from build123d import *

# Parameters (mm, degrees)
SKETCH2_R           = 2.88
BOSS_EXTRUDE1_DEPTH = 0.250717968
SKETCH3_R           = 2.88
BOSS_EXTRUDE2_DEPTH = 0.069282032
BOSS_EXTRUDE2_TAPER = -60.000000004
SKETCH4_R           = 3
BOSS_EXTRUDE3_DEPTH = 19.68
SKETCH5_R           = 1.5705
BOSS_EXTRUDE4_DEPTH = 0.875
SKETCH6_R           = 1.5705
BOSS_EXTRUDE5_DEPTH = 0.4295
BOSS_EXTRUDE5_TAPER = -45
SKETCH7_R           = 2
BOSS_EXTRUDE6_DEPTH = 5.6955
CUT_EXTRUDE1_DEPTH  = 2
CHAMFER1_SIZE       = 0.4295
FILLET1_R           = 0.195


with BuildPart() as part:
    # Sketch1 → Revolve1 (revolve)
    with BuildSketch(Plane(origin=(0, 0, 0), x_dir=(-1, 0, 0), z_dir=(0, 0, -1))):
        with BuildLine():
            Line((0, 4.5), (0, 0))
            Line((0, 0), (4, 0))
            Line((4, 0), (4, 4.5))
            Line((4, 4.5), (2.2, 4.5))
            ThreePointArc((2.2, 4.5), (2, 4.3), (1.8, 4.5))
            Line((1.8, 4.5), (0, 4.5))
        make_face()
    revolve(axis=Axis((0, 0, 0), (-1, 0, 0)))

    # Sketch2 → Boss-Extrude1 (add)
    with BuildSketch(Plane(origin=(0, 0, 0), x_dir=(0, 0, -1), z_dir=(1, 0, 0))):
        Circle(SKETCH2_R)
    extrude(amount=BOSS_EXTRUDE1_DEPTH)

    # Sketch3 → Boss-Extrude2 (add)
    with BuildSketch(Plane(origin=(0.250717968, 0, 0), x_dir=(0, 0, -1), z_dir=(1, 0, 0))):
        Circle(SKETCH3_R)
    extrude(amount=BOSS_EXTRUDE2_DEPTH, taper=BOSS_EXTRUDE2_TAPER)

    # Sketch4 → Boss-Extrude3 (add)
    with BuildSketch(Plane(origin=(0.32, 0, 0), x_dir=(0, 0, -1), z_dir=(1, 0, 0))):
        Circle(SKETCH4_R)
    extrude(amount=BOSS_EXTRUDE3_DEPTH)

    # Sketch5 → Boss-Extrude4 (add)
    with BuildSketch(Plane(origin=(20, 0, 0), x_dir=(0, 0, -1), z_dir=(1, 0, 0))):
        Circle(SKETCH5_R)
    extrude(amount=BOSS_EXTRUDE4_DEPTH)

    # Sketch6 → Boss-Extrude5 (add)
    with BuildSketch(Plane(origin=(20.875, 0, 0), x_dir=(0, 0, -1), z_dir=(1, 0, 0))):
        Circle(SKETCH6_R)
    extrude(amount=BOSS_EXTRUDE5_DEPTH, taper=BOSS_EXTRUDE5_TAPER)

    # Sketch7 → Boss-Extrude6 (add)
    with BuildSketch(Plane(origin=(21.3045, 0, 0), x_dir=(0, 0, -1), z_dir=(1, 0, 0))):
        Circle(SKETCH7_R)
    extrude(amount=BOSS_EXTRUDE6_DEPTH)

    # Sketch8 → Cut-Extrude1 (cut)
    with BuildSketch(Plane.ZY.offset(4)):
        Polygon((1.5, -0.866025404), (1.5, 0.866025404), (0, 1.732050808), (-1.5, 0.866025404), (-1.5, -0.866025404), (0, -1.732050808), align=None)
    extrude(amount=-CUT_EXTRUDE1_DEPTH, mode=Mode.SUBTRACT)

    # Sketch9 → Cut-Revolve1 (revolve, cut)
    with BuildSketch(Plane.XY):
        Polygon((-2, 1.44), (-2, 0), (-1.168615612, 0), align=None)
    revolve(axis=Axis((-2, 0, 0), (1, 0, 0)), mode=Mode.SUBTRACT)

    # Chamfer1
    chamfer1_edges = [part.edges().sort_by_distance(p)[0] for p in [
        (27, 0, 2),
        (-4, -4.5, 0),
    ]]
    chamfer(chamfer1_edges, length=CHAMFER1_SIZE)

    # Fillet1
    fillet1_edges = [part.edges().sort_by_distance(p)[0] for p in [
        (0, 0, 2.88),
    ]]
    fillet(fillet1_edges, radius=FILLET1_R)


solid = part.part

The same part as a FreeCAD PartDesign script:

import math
import FreeCAD as App
import Part
import Sketcher
from FreeCAD import Vector
Q = App.Units.Quantity


def edges_at(feature, points):
    """Names of the edges that pass closest to the given points."""
    edges = feature.Shape.Edges
    near = lambda p: min(range(len(edges)), key=lambda i: edges[i].distToShape(Part.Vertex(*p))[0])
    return sorted({f"Edge{near(p) + 1}" for p in points})


def add_polygon(sketch, points):
    """Adds a closed chain of lines whose ends are joined by coincident constraints."""
    first, n = sketch.GeometryCount, len(points)
    for a, b in zip(points, points[1:] + points[:1]):
        sketch.addGeometry(Part.LineSegment(App.Vector(*a, 0), App.Vector(*b, 0)), False)
    for i in range(n):
        sketch.addConstraint(Sketcher.Constraint("Coincident", first + i, 2, first + (i + 1) % n, 1))

doc = App.newDocument("Part")
body = doc.addObject("PartDesign::Body", "Body")

# Sketch on XY plane
sketch1 = body.newObject("Sketcher::SketchObject", "Sketch")
sketch1.AttachmentSupport = (doc.getObject("XY_Plane"), [""])
sketch1.MapMode = "FlatFace"
sketch1.addGeometry([
    Part.LineSegment(Vector(0, 4.5, 0), Vector(0, 0, 0)),  # 0
    Part.LineSegment(Vector(0, 0, 0), Vector(-4, 0, 0)),  # 1
    Part.LineSegment(Vector(-4, 0, 0), Vector(-4, 4.5, 0)),  # 2
    Part.LineSegment(Vector(-4, 4.5, 0), Vector(-2.2, 4.5, 0)),  # 3
    Part.ArcOfCircle(Part.Circle(Vector(-2, 4.5, 0), Vector(0, 0, 1), 0.2), math.radians(180), math.radians(360)),  # 4
    Part.LineSegment(Vector(-1.8, 4.5, 0), Vector(0, 4.5, 0)),  # 5
], False)
sketch1.addConstraint([
    Sketcher.Constraint("Coincident", 0, 2, 1, 1),
    Sketcher.Constraint("Coincident", 1, 2, 2, 1),
    Sketcher.Constraint("Coincident", 2, 2, 3, 1),
    Sketcher.Constraint("Coincident", 3, 2, 4, 1),
    Sketcher.Constraint("Coincident", 4, 2, 5, 1),
    Sketcher.Constraint("Coincident", 5, 2, 0, 1),
    Sketcher.Constraint("Vertical", 0),
    Sketcher.Constraint("Horizontal", 1),
    Sketcher.Constraint("Vertical", 2),
    Sketcher.Constraint("Horizontal", 3),
    Sketcher.Constraint("Horizontal", 5),
    Sketcher.Constraint("Coincident", 0, 2, -1, 1),
    Sketcher.Constraint("Horizontal", 4, 3, 2, 2),
    Sketcher.Constraint("Horizontal", 3, 2, 4, 2),
    Sketcher.Constraint("Equal", 3, 5),
    Sketcher.Constraint("Radius", 4, Q("0.2 mm")),
    Sketcher.Constraint("DistanceX", 1, 2, 1, 1, Q("4 mm")),
    Sketcher.Constraint("DistanceY", 0, 2, 0, 1, Q("4.5 mm")),
])
revolution = body.newObject("PartDesign::Revolution", "Revolution")
revolution.Profile = sketch1
revolution.ReferenceAxis = (sketch1, ["H_Axis"])
revolution.Angle = 360

# Sketch on YZ plane
sketch2 = body.newObject("Sketcher::SketchObject", "Sketch001")
sketch2.AttachmentSupport = (doc.getObject("YZ_Plane"), [""])
sketch2.MapMode = "FlatFace"
sketch2.addGeometry(Part.Circle(Vector(0, 0, 0), Vector(0, 0, 1), 2.9), False)
sketch2.addConstraint([
    Sketcher.Constraint("Coincident", 0, 3, -1, 1),
    Sketcher.Constraint("Diameter", 0, Q("5.76 mm")),
])
pad1 = body.newObject("PartDesign::Pad", "Pad")
pad1.Profile = sketch2
pad1.Length = 0.250718

# Sketch on YZ plane
sketch3 = body.newObject("Sketcher::SketchObject", "Sketch002")
sketch3.AttachmentSupport = (doc.getObject("YZ_Plane"), [""])
sketch3.MapMode = "FlatFace"
sketch3.AttachmentOffset = App.Placement(Vector(0, 0, 0.250718), App.Rotation())
sketch3.addGeometry(Part.Circle(Vector(0, 0, 0), Vector(0, 0, 1), 2.9), False)
sketch3.addConstraint([
    Sketcher.Constraint("Coincident", 0, 3, -1, 1),
    Sketcher.Constraint("Diameter", 0, Q("5.76 mm")),
])
pad2 = body.newObject("PartDesign::Pad", "Pad001")
pad2.Profile = sketch3
pad2.Length = 0.069282
pad2.TaperAngle = 60

# Sketch on YZ plane
sketch4 = body.newObject("Sketcher::SketchObject", "Sketch003")
sketch4.AttachmentSupport = (doc.getObject("YZ_Plane"), [""])
sketch4.MapMode = "FlatFace"
sketch4.AttachmentOffset = App.Placement(Vector(0, 0, 0.32), App.Rotation())
sketch4.addGeometry(Part.Circle(Vector(0, 0, 0), Vector(0, 0, 1), 3), False)
sketch4.addConstraint([
    Sketcher.Constraint("Coincident", 0, 3, -1, 1),
    Sketcher.Constraint("Diameter", 0, Q("6 mm")),
])
pad3 = body.newObject("PartDesign::Pad", "Pad002")
pad3.Profile = sketch4
pad3.Length = 19.68

# Sketch on YZ plane
sketch5 = body.newObject("Sketcher::SketchObject", "Sketch004")
sketch5.AttachmentSupport = (doc.getObject("YZ_Plane"), [""])
sketch5.MapMode = "FlatFace"
sketch5.AttachmentOffset = App.Placement(Vector(0, 0, 20), App.Rotation())
sketch5.addGeometry(Part.Circle(Vector(0, 0, 0), Vector(0, 0, 1), 1.6), False)
sketch5.addConstraint([
    Sketcher.Constraint("Coincident", 0, 3, -1, 1),
    Sketcher.Constraint("Diameter", 0, Q("3.141 mm")),
])
pad4 = body.newObject("PartDesign::Pad", "Pad003")
pad4.Profile = sketch5
pad4.Length = 0.875

# Sketch on YZ plane
sketch6 = body.newObject("Sketcher::SketchObject", "Sketch005")
sketch6.AttachmentSupport = (doc.getObject("YZ_Plane"), [""])
sketch6.MapMode = "FlatFace"
sketch6.AttachmentOffset = App.Placement(Vector(0, 0, 20.875), App.Rotation())
sketch6.addGeometry(Part.Circle(Vector(0, 0, 0), Vector(0, 0, 1), 1.6), False)
sketch6.addConstraint([
    Sketcher.Constraint("Coincident", 0, 3, -1, 1),
    Sketcher.Constraint("Diameter", 0, Q("3.141 mm")),
])
pad5 = body.newObject("PartDesign::Pad", "Pad004")
pad5.Profile = sketch6
pad5.Length = 0.4295
pad5.TaperAngle = 45

# Sketch on YZ plane
sketch7 = body.newObject("Sketcher::SketchObject", "Sketch006")
sketch7.AttachmentSupport = (doc.getObject("YZ_Plane"), [""])
sketch7.MapMode = "FlatFace"
sketch7.AttachmentOffset = App.Placement(Vector(0, 0, 21.3045), App.Rotation())
sketch7.addGeometry(Part.Circle(Vector(0, 0, 0), Vector(0, 0, 1), 2), False)
sketch7.addConstraint([
    Sketcher.Constraint("Coincident", 0, 3, -1, 1),
    Sketcher.Constraint("Diameter", 0, Q("4 mm")),
])
pad6 = body.newObject("PartDesign::Pad", "Pad005")
pad6.Profile = sketch7
pad6.Length = 5.6955

# Sketch on YZ plane
sketch8 = body.newObject("Sketcher::SketchObject", "Sketch007")
sketch8.AttachmentSupport = (doc.getObject("YZ_Plane"), [""])
sketch8.MapMode = "FlatFace"
sketch8.AttachmentOffset = App.Placement(Vector(0, 0, -4), App.Rotation())
add_polygon(sketch8, [(-0.9, 1.5), (0.9, 1.5), (1.7, 0), (0.9, -1.5), (-0.9, -1.5), (-1.7, 0)])  # lines 0-5
sketch8.addConstraint([
    Sketcher.Constraint("Horizontal", 0),
    Sketcher.Constraint("Horizontal", 3),
    Sketcher.Constraint("Symmetric", 0, 2, 3, 2, -1, 1),
    Sketcher.Constraint("Symmetric", 1, 2, 4, 2, -1, 1),
    Sketcher.Constraint("PointOnObject", 1, 2, -1),
    Sketcher.Constraint("Parallel", 2, 5),
    Sketcher.Constraint("Vertical", 0, 2, 2, 2),
    Sketcher.Constraint("Angle", 1, Q("-60 deg")),
    Sketcher.Constraint("DistanceY", 2, 2, 0, 2, Q("3 mm")),
    Sketcher.Constraint("DistanceX", 0, 1, 0, 2, Q("1.732051 mm")),
])
pocket1 = body.newObject("PartDesign::Pocket", "Pocket")
pocket1.Profile = sketch8
pocket1.Length = 2
pocket1.Reversed = True

# Sketch on XY plane
sketch9 = body.newObject("Sketcher::SketchObject", "Sketch008")
sketch9.AttachmentSupport = (doc.getObject("XY_Plane"), [""])
sketch9.MapMode = "FlatFace"
add_polygon(sketch9, [(-2, 1.4), (-2, 0), (-1.2, 0)])  # lines 0-2
sketch9.addConstraint([
    Sketcher.Constraint("Vertical", 0),
    Sketcher.Constraint("Horizontal", 1),
    Sketcher.Constraint("PointOnObject", 0, 2, -1),
    Sketcher.Constraint("Angle", 2, Q("120 deg")),
    Sketcher.Constraint("DistanceX", 0, 2, -1, 1, Q("2 mm")),
    Sketcher.Constraint("DistanceY", 0, 2, 0, 1, Q("1.44 mm")),
])
groove = body.newObject("PartDesign::Groove", "Groove")
groove.Profile = sketch9
groove.ReferenceAxis = (sketch9, ["H_Axis"])
groove.Angle = 360
doc.recompute()

chamfer = body.newObject("PartDesign::Chamfer", "Chamfer")
chamfer.Base = (groove, edges_at(groove, [(27, 0, 2), (-4, -4.5, 0)]))
chamfer.Size = 0.4295
doc.recompute()

fillet = body.newObject("PartDesign::Fillet", "Fillet")
fillet.Base = (chamfer, edges_at(chamfer, [(0, 0, 2.88)]))
fillet.Radius = 0.195

doc.recompute()
